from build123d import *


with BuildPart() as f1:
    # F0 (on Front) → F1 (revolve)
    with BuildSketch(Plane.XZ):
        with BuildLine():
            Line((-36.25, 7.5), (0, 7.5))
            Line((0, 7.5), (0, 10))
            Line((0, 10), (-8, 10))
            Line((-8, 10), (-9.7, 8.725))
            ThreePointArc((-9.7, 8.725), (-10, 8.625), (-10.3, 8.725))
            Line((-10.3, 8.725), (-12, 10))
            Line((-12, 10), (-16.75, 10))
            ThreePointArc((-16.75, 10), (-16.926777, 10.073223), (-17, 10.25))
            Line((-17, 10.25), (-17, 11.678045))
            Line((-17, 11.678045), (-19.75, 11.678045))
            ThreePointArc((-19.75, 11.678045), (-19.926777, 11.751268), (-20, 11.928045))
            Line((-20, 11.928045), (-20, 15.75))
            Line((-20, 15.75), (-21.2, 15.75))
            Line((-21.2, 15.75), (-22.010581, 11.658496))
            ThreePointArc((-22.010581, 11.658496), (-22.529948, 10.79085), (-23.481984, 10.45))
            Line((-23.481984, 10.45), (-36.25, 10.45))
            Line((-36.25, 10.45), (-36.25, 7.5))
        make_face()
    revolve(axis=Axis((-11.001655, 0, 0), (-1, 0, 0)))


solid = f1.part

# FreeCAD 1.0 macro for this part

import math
import FreeCAD as App
import Part
import Sketcher
from FreeCAD import Vector
Q = App.Units.Quantity

doc = App.newDocument("Part")
body = doc.addObject("PartDesign::Body", "Body")

# Sketch on XZ plane
sketch1 = body.newObject("Sketcher::SketchObject", "Sketch")
sketch1.AttachmentSupport = (doc.getObject("XZ_Plane"), [""])
sketch1.MapMode = "FlatFace"
sketch1.addGeometry([
    Part.LineSegment(Vector(-36.25, 7.5, 0), Vector(0, 7.5, 0)),  # 0
    Part.LineSegment(Vector(0, 7.5, 0), Vector(0, 10, 0)),  # 1
    Part.LineSegment(Vector(0, 10, 0), Vector(-8, 10, 0)),  # 2
    Part.LineSegment(Vector(-8, 10, 0), Vector(-9.7, 8.72, 0)),  # 3
    Part.ArcOfCircle(Part.Circle(Vector(-10, 9.12, 0), Vector(0, 0, 1), 0.5), math.radians(-127), math.radians(-53)),  # 4
    Part.LineSegment(Vector(-10.3, 8.72, 0), Vector(-12, 10, 0)),  # 5
    Part.LineSegment(Vector(-12, 10, 0), Vector(-16.75, 10, 0)),  # 6
    Part.ArcOfCircle(Part.Circle(Vector(-16.75, 10.25, 0), Vector(0, 0, 1), 0.25), math.radians(180), math.radians(270)),  # 7
    Part.LineSegment(Vector(-17, 10.25, 0), Vector(-17, 11.68, 0)),  # 8
    Part.LineSegment(Vector(-17, 11.68, 0), Vector(-19.75, 11.68, 0)),  # 9
    Part.ArcOfCircle(Part.Circle(Vector(-19.75, 11.93, 0), Vector(0, 0, 1), 0.25), math.radians(180), math.radians(270)),  # 10
    Part.LineSegment(Vector(-20, 11.93, 0), Vector(-20, 15.75, 0)),  # 11
    Part.LineSegment(Vector(-20, 15.75, 0), Vector(-21.2, 15.75, 0)),  # 12
    Part.LineSegment(Vector(-21.2, 15.75, 0), Vector(-22.01, 11.66, 0)),  # 13
    Part.ArcOfCircle(Part.Circle(Vector(-23.48, 11.95, 0), Vector(0, 0, 1), 1.5), math.radians(-90), math.radians(-11)),  # 14
    Part.LineSegment(Vector(-23.48, 10.45, 0), Vector(-36.25, 10.45, 0)),  # 15
    Part.LineSegment(Vector(-36.25, 10.45, 0), Vector(-36.25, 7.5, 0)),  # 16
], False)
sketch1.addConstraint([
    Sketcher.Constraint("Coincident", 0, 2, 1, 1),
    Sketcher.Constraint("Coincident", 1, 2, 2, 1),
    Sketcher.Constraint("Coincident", 2, 2, 3, 1),
    Sketcher.Constraint("Tangent", 3, 2, 4, 2),
    Sketcher.Constraint("Tangent", 4, 1, 5, 1),
    Sketcher.Constraint("Coincident", 5, 2, 6, 1),
    Sketcher.Constraint("Coincident", 6, 2, 7, 2),
    Sketcher.Constraint("Coincident", 7, 1, 8, 1),
    Sketcher.Constraint("Coincident", 8, 2, 9, 1),
    Sketcher.Constraint("Coincident", 9, 2, 10, 2),
    Sketcher.Constraint("Coincident", 10, 1, 11, 1),
    Sketcher.Constraint("Coincident", 11, 2, 12, 1),
    Sketcher.Constraint("Coincident", 12, 2, 13, 1),
    Sketcher.Constraint("Tangent", 13, 2, 14, 2),
    Sketcher.Constraint("Tangent", 14, 1, 15, 1),
    Sketcher.Constraint("Coincident", 15, 2, 16, 1),
    Sketcher.Constraint("Coincident", 16, 2, 0, 1),
    Sketcher.Constraint("Horizontal", 0),
    Sketcher.Constraint("Vertical", 1),
    Sketcher.Constraint("Horizontal", 2),
    Sketcher.Constraint("Horizontal", 6),
    Sketcher.Constraint("Vertical", 8),
    Sketcher.Constraint("Horizontal", 9),
    Sketcher.Constraint("Vertical", 11),
    Sketcher.Constraint("Horizontal", 12),
    Sketcher.Constraint("Horizontal", 15),
    Sketcher.Constraint("Vertical", 16),
    Sketcher.Constraint("Equal", 7, 10),
    Sketcher.Constraint("PointOnObject", 0, 2, -2),
    Sketcher.Constraint("Horizontal", 3, 2, 4, 1),
    Sketcher.Constraint("Horizontal", 2, 2, 5, 2),
    Sketcher.Constraint("Vertical", 7, 3, 6, 2),
    Sketcher.Constraint("Vertical", 10, 3, 9, 2),
    Sketcher.Constraint("Radius", 4, Q("0.5 mm")),
    Sketcher.Constraint("Radius", 14, Q("1.5 mm")),
    Sketcher.Constraint("DistanceX", 2, 2, 2, 1, Q("8 mm")),
    Sketcher.Constraint("Radius", 7, Q("0.249999 mm")),
    Sketcher.Constraint("DistanceX", 12, 2, 12, 1, Q("1.2 mm")),
    Sketcher.Constraint("DistanceY", 1, 1, 1, 2, Q("2.5 mm")),
    Sketcher.Constraint("DistanceX", 4, 3, -1, 1, Q("10 mm")),
    Sketcher.Constraint("DistanceY", -1, 1, 1, 2, Q("10 mm")),
    Sketcher.Constraint("DistanceX", 7, 1, -1, 1, Q("17 mm")),
    Sketcher.Constraint("DistanceX", 10, 1, -1, 1, Q("20 mm")),
    Sketcher.Constraint("DistanceX", 0, 1, 0, 2, Q("36.25 mm")),
    Sketcher.Constraint("DistanceY", 16, 2, 16, 1, Q("2.95 mm")),
    Sketcher.Constraint("DistanceX", 3, 2, -1, 1, Q("9.7 mm")),
    Sketcher.Constraint("DistanceY", 7, 1, 14, 3, Q("1.7 mm")),
    Sketcher.Constraint("DistanceY", 14, 3, 11, 2, Q("3.8 mm")),
    Sketcher.Constraint("DistanceY", 9, 2, 10, 1, Q("0.25 mm")),
    Sketcher.Constraint("DistanceX", 15, 2, 15, 1, Q("12.768016 mm")),
    Sketcher.Constraint("DistanceY", 8, 1, 8, 2, Q("1.428045 mm")),
])
revolution = body.newObject("PartDesign::Revolution", "Revolution")
revolution.Profile = sketch1
revolution.ReferenceAxis = (sketch1, ["H_Axis"])
revolution.Angle = 360

doc.recompute()
